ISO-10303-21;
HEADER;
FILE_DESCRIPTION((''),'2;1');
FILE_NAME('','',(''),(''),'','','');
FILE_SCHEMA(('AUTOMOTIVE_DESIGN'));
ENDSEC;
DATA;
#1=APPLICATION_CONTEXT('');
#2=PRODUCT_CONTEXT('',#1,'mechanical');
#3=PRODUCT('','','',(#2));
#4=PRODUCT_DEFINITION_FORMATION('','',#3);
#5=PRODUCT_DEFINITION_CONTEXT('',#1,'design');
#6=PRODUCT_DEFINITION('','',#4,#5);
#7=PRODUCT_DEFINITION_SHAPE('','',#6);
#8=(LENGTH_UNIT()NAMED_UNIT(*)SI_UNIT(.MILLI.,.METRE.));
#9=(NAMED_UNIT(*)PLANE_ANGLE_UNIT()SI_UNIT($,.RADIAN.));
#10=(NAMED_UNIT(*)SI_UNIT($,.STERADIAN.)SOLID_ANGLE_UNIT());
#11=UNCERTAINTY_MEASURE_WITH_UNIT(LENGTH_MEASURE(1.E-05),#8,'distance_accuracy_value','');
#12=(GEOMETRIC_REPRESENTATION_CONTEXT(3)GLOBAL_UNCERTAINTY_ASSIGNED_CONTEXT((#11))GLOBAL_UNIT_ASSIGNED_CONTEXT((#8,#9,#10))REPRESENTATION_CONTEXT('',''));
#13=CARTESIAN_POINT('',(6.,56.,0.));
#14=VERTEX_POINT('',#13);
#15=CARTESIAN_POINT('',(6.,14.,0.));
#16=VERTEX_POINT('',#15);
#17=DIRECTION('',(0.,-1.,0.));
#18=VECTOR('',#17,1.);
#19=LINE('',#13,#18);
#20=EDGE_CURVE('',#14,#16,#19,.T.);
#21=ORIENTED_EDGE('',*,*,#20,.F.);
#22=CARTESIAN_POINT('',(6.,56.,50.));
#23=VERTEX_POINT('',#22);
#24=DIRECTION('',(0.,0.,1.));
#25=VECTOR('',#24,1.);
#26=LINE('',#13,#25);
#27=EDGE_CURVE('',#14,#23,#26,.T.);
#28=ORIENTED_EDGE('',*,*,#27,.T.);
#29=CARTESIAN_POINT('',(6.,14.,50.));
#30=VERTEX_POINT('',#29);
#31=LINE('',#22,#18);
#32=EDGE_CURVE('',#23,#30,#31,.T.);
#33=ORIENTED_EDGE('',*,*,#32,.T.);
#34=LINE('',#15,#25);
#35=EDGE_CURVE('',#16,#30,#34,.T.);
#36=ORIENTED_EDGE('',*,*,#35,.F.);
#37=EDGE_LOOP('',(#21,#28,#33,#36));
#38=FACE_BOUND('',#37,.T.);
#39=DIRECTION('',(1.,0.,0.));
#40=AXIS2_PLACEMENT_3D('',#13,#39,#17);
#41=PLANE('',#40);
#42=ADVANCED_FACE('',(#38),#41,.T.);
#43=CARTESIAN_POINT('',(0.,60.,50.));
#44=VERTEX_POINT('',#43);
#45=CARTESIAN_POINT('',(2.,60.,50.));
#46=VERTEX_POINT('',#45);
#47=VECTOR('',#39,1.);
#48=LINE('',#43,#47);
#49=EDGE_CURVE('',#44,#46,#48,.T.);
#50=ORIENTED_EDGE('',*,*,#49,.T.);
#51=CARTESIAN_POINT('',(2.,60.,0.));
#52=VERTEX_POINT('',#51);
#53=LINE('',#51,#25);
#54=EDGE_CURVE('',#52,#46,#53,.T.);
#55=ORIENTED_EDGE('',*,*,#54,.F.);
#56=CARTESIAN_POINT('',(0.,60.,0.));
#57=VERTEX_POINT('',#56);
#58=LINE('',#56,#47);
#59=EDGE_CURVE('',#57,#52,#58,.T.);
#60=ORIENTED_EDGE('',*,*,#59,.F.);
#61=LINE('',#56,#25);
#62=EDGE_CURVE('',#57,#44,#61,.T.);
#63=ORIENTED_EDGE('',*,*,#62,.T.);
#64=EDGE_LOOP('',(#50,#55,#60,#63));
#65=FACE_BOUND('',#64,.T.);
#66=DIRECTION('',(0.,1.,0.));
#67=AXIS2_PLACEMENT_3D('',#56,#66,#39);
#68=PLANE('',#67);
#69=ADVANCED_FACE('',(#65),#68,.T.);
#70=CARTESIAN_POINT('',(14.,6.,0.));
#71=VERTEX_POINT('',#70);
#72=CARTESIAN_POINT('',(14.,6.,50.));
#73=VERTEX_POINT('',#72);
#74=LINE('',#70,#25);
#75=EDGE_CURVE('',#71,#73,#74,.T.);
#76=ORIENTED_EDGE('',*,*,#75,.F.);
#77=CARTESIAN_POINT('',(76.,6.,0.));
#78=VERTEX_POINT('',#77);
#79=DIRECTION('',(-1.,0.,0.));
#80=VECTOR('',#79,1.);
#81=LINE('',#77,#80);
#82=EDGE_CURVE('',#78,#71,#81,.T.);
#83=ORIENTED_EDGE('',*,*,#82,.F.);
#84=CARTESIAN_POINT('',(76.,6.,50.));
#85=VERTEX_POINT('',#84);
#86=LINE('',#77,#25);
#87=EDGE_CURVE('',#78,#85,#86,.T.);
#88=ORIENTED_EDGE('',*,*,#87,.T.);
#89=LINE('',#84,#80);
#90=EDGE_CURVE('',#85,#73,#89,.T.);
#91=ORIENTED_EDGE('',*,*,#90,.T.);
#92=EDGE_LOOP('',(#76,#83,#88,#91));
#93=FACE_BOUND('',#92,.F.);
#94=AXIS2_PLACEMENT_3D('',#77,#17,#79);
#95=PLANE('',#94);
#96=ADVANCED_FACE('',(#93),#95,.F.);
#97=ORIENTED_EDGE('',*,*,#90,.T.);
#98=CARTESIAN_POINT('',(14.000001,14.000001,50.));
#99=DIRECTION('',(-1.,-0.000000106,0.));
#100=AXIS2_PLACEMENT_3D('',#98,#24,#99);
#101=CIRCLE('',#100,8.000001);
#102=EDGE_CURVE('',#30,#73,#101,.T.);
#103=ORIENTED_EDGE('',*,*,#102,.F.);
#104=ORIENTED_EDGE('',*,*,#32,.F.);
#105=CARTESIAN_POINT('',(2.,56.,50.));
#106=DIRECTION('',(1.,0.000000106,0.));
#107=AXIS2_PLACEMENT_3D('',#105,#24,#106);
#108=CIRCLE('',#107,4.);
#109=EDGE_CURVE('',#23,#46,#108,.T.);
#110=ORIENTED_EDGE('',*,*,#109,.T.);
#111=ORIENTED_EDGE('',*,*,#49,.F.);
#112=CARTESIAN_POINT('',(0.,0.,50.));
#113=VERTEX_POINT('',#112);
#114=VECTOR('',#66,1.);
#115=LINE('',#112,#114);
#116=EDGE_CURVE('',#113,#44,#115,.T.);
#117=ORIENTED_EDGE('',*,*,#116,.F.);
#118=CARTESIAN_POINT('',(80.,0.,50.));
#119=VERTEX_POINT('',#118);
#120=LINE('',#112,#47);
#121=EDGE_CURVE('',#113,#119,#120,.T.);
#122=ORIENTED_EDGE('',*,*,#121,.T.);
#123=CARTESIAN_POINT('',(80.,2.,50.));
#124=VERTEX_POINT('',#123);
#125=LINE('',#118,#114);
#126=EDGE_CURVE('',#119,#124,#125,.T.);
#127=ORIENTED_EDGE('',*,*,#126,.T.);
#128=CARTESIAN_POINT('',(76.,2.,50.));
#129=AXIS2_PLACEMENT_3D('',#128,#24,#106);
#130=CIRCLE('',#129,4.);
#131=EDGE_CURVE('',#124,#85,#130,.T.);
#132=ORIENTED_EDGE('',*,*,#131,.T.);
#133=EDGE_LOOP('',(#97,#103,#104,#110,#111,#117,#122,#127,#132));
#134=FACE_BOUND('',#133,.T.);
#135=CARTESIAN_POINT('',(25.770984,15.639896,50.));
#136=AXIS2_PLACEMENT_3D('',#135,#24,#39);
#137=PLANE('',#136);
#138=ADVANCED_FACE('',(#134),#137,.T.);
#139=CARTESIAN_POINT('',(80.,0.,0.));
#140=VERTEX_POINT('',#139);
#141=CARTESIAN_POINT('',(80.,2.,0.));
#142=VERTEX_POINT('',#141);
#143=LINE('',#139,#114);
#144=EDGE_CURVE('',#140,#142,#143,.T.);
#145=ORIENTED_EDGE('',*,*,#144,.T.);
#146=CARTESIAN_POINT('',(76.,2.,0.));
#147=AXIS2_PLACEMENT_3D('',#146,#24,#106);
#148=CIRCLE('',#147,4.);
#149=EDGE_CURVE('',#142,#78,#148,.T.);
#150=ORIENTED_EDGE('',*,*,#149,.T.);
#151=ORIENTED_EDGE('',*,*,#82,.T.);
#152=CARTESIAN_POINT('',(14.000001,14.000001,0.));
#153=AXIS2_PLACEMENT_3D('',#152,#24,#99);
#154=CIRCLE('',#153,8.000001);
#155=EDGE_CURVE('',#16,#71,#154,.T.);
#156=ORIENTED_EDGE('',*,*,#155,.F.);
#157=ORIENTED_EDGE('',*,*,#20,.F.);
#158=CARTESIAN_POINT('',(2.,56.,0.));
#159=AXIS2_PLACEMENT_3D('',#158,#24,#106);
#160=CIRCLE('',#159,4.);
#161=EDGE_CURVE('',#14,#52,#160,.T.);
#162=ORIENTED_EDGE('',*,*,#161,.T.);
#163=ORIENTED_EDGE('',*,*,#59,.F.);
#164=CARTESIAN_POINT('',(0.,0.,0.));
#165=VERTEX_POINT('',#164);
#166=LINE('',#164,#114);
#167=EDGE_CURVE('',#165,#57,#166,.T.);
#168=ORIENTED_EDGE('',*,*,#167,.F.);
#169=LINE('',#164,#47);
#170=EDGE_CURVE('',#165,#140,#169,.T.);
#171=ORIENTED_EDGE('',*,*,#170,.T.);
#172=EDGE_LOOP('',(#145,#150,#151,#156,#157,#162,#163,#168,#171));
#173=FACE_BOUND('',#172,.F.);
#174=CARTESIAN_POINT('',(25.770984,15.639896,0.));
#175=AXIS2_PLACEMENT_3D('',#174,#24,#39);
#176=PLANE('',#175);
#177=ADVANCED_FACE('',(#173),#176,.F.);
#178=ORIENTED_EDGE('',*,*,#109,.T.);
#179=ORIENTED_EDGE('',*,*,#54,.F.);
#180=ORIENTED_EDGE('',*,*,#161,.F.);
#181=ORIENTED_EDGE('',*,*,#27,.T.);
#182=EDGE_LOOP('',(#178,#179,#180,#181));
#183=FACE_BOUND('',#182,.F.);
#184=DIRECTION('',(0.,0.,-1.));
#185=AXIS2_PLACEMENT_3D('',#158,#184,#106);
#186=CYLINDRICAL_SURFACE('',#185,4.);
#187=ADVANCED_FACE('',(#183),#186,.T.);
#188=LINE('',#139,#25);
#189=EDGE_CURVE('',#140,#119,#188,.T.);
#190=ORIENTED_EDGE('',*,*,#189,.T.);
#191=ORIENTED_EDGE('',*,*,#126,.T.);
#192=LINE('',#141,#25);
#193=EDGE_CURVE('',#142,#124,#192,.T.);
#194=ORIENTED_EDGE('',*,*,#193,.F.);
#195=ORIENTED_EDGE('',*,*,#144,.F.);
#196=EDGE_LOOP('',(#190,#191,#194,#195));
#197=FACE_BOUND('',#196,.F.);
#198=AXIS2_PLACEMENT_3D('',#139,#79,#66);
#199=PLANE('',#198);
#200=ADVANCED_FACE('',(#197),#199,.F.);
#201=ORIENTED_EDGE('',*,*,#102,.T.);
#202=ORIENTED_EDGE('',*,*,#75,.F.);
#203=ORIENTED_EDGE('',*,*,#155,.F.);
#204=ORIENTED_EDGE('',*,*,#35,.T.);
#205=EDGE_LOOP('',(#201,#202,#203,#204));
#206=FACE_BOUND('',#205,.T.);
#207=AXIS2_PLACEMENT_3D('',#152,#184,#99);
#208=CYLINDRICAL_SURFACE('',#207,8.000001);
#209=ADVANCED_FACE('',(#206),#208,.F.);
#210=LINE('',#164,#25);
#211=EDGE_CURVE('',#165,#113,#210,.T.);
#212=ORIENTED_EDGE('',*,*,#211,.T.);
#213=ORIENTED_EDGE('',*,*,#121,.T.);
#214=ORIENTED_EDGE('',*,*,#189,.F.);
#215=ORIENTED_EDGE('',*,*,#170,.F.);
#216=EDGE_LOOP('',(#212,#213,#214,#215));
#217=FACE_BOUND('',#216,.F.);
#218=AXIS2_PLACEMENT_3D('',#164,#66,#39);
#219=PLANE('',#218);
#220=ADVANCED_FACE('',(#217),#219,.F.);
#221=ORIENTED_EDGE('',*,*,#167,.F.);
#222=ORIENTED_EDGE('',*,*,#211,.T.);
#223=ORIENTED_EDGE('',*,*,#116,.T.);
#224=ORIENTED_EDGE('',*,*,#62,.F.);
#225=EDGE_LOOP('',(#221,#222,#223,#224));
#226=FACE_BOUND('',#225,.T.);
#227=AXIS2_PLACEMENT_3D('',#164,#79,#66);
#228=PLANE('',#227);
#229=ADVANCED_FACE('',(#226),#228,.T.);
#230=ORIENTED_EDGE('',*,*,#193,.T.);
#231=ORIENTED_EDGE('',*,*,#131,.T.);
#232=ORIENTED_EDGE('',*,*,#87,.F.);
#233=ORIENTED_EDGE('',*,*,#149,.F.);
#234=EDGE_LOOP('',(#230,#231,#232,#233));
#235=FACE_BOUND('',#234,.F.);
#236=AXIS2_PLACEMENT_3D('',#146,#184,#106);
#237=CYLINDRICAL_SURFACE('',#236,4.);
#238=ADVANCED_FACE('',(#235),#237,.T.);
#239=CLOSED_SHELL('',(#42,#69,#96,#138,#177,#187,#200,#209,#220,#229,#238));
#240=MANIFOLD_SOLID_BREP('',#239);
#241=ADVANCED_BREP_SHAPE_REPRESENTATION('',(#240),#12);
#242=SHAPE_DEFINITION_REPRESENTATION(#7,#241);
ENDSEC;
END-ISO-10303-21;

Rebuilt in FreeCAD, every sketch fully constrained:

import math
import FreeCAD as App
import Part
import Sketcher
from FreeCAD import Vector
Q = App.Units.Quantity

doc = App.newDocument("Part")
params = doc.addObject("Spreadsheet::Sheet", "Params")
for row, (alias, value) in enumerate([
    ("sketch1_radius", "4 mm"),
    ("sketch1_radius2", "8.000001 mm"),
    ("sketch1_width", "80 mm"),
    ("sketch1_width2", "62 mm"),
    ("sketch1_height", "42 mm"),
    ("pad1_length", "50 mm"),
], start=1):
    params.set(f"A{row}", alias)
    params.set(f"B{row}", "=" + value)
    params.setAlias(f"B{row}", alias)

body = doc.addObject("PartDesign::Body", "Body")

sketch1 = doc.addObject("Sketcher::SketchObject", "Sketch")
body.addObject(sketch1)
sketch1.AttachmentSupport = (doc.XY_Plane, [""])
sketch1.MapMode = "FlatFace"
sketch1.addGeometry([
    Part.LineSegment(Vector(0, 0, 0), Vector(80, 0, 0)),
    Part.LineSegment(Vector(80, 0, 0), Vector(80, 2, 0)),
    Part.ArcOfCircle(Part.Circle(Vector(76, 2, 0), Vector(0, 0, 1), 4), math.radians(0), math.radians(90)),
    Part.LineSegment(Vector(76, 6, 0), Vector(14, 6, 0)),
    Part.ArcOfCircle(Part.Circle(Vector(14, 14, 0), Vector(0, 0, 1), 8), math.radians(-180), math.radians(-90)),
    Part.LineSegment(Vector(6, 14, 0), Vector(6, 56, 0)),
    Part.ArcOfCircle(Part.Circle(Vector(2, 56, 0), Vector(0, 0, 1), 4), math.radians(0), math.radians(90)),
    Part.LineSegment(Vector(2, 60, 0), Vector(0, 60, 0)),
    Part.LineSegment(Vector(0, 60, 0), Vector(0, 0, 0)),
], False)
sketch1.addConstraint([
    Sketcher.Constraint("Coincident", 0, 2, 1, 1),
    Sketcher.Constraint("Tangent", 1, 2, 2, 1),
    Sketcher.Constraint("Tangent", 2, 2, 3, 1),
    Sketcher.Constraint("Tangent", 3, 2, 4, 2),
    Sketcher.Constraint("Tangent", 4, 1, 5, 1),
    Sketcher.Constraint("Tangent", 5, 2, 6, 1),
    Sketcher.Constraint("Tangent", 6, 2, 7, 1),
    Sketcher.Constraint("Coincident", 7, 2, 8, 1),
    Sketcher.Constraint("Coincident", 8, 2, 0, 1),
    Sketcher.Constraint("Horizontal", 0),
    Sketcher.Constraint("Vertical", 1),
    Sketcher.Constraint("Horizontal", 3),
    Sketcher.Constraint("Vertical", 5),
    Sketcher.Constraint("Horizontal", 7),
    Sketcher.Constraint("Vertical", 8),
    Sketcher.Constraint("Coincident", 8, 2, -1, 1),
    Sketcher.Constraint("Equal", 2, 6),
    Sketcher.Constraint("Equal", 7, 1),
    Sketcher.Constraint("Radius", 2, Q("4 mm")),
    Sketcher.Constraint("Radius", 4, Q("8.000001 mm")),
    Sketcher.Constraint("DistanceX", 0, 1, 0, 2, Q("80 mm")),
    Sketcher.Constraint("DistanceX", 3, 2, 3, 1, Q("62 mm")),
    Sketcher.Constraint("DistanceY", 5, 1, 5, 2, Q("42 mm")),
])
sketch1.setExpression("Constraints[18]", "Params.sketch1_radius")
sketch1.setExpression("Constraints[19]", "Params.sketch1_radius2")
sketch1.setExpression("Constraints[20]", "Params.sketch1_width")
sketch1.setExpression("Constraints[21]", "Params.sketch1_width2")
sketch1.setExpression("Constraints[22]", "Params.sketch1_height")
pad1 = doc.addObject("PartDesign::Pad", "Pad")
body.addObject(pad1)
pad1.Profile = sketch1
pad1.setExpression("Length", "Params.pad1_length")

doc.recompute()
